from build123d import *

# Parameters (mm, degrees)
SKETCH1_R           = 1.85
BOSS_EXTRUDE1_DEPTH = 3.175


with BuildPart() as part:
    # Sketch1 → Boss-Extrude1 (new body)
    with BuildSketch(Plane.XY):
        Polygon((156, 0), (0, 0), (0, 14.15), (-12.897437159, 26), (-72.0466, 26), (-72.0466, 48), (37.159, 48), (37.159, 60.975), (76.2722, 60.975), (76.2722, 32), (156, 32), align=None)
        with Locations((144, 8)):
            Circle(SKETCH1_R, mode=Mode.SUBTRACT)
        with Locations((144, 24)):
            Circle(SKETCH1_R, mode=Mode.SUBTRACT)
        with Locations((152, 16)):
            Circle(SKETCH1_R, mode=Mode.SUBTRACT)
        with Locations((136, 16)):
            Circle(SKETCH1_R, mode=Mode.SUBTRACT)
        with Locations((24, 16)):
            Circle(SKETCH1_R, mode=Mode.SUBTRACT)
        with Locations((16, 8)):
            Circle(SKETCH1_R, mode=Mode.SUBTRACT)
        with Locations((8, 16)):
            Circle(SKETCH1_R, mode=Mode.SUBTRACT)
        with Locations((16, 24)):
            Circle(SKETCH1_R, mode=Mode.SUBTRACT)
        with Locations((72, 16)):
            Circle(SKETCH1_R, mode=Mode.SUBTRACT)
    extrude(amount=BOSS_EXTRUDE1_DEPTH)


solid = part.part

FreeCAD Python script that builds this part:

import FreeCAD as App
import Part
import Sketcher
Q = App.Units.Quantity

doc = App.newDocument("Part")
body = doc.addObject("PartDesign::Body", "Body")

# Sketch on XY plane
sketch1 = body.newObject("Sketcher::SketchObject", "Sketch")
sketch1.AttachmentSupport = (doc.getObject("XY_Plane"), [""])
sketch1.MapMode = "FlatFace"
sketch1.addGeometry([
    Part.LineSegment(App.Vector(0, 0, 0), App.Vector(156, 0, 0)),  # 0
    Part.LineSegment(App.Vector(156, 0, 0), App.Vector(156, 32, 0)),  # 1
    Part.LineSegment(App.Vector(156, 32, 0), App.Vector(76.2722, 32, 0)),  # 2
    Part.LineSegment(App.Vector(76.2722, 32, 0), App.Vector(76.2722, 60.975, 0)),  # 3
    Part.LineSegment(App.Vector(76.2722, 60.975, 0), App.Vector(37.159, 60.975, 0)),  # 4
    Part.LineSegment(App.Vector(37.159, 60.975, 0), App.Vector(37.159, 48, 0)),  # 5
    Part.LineSegment(App.Vector(37.159, 48, 0), App.Vector(-72.0466, 48, 0)),  # 6
    Part.LineSegment(App.Vector(-72.0466, 48, 0), App.Vector(-72.0466, 26, 0)),  # 7
    Part.LineSegment(App.Vector(-72.0466, 26, 0), App.Vector(-12.897437, 26, 0)),  # 8
    Part.LineSegment(App.Vector(-12.897437, 26, 0), App.Vector(0, 14.15, 0)),  # 9
    Part.LineSegment(App.Vector(0, 14.15, 0), App.Vector(0, 0, 0)),  # 10
    Part.Circle(App.Vector(144, 8, 0), App.Vector(0, 0, 1), 1.85),  # 11
    Part.Circle(App.Vector(16, 8, 0), App.Vector(0, 0, 1), 1.85),  # 12
    Part.Circle(App.Vector(152, 16, 0), App.Vector(0, 0, 1), 1.85),  # 13
    Part.Circle(App.Vector(136, 16, 0), App.Vector(0, 0, 1), 1.85),  # 14
    Part.Circle(App.Vector(144, 24, 0), App.Vector(0, 0, 1), 1.85),  # 15
    Part.Circle(App.Vector(72, 16, 0), App.Vector(0, 0, 1), 1.85),  # 16
    Part.Circle(App.Vector(24, 16, 0), App.Vector(0, 0, 1), 1.85),  # 17
    Part.Circle(App.Vector(8, 16, 0), App.Vector(0, 0, 1), 1.85),  # 18
    Part.Circle(App.Vector(16, 24, 0), App.Vector(0, 0, 1), 1.85),  # 19
], False)
sketch1.addConstraint([
    Sketcher.Constraint("Coincident", 0, 2, 1, 1),
    Sketcher.Constraint("Coincident", 1, 2, 2, 1),
    Sketcher.Constraint("Coincident", 2, 2, 3, 1),
    Sketcher.Constraint("Coincident", 3, 2, 4, 1),
    Sketcher.Constraint("Coincident", 4, 2, 5, 1),
    Sketcher.Constraint("Coincident", 5, 2, 6, 1),
    Sketcher.Constraint("Coincident", 6, 2, 7, 1),
    Sketcher.Constraint("Coincident", 7, 2, 8, 1),
    Sketcher.Constraint("Coincident", 8, 2, 9, 1),
    Sketcher.Constraint("Coincident", 9, 2, 10, 1),
    Sketcher.Constraint("Coincident", 10, 2, 0, 1),
    Sketcher.Constraint("Horizontal", 0),
    Sketcher.Constraint("Vertical", 1),
    Sketcher.Constraint("Horizontal", 2),
    Sketcher.Constraint("Vertical", 3),
    Sketcher.Constraint("Horizontal", 4),
    Sketcher.Constraint("Vertical", 5),
    Sketcher.Constraint("Horizontal", 6),
    Sketcher.Constraint("Vertical", 7),
    Sketcher.Constraint("Horizontal", 8),
    Sketcher.Constraint("Vertical", 10),
    Sketcher.Constraint("Coincident", 10, 2, -1, 1),
    Sketcher.Constraint("Equal", 11, 12),
    Sketcher.Constraint("Equal", 12, 13),
    Sketcher.Constraint("Equal", 13, 14),
    Sketcher.Constraint("Equal", 14, 15),
    Sketcher.Constraint("Equal", 15, 16),
    Sketcher.Constraint("Equal", 16, 17),
    Sketcher.Constraint("Equal", 17, 18),
    Sketcher.Constraint("Equal", 18, 19),
    Sketcher.Constraint("Horizontal", 11, 3, 12, 3),
    Sketcher.Constraint("Horizontal", 13, 3, 14, 3),
    Sketcher.Constraint("Horizontal", 14, 3, 16, 3),
    Sketcher.Constraint("Horizontal", 16, 3, 17, 3),
    Sketcher.Constraint("Horizontal", 17, 3, 18, 3),
    Sketcher.Constraint("Horizontal", 15, 3, 19, 3),
    Sketcher.Constraint("Vertical", 11, 3, 15, 3),
    Sketcher.Constraint("Vertical", 12, 3, 19, 3),
    Sketcher.Constraint("Diameter", 11, Q("3.7 mm")),
    Sketcher.Constraint("DistanceX", 0, 1, 0, 2, Q("156 mm")),
    Sketcher.Constraint("DistanceY", 1, 1, 1, 2, Q("32 mm")),
    Sketcher.Constraint("DistanceY", 7, 2, 7, 1, Q("22 mm")),
    Sketcher.Constraint("DistanceX", -1, 1, 11, 3, Q("144 mm")),
    Sketcher.Constraint("DistanceY", -1, 1, 11, 3, Q("8 mm")),
    Sketcher.Constraint("DistanceX", -1, 1, 12, 3, Q("16 mm")),
    Sketcher.Constraint("DistanceX", -1, 1, 13, 3, Q("152 mm")),
    Sketcher.Constraint("DistanceY", -1, 1, 13, 3, Q("16 mm")),
    Sketcher.Constraint("DistanceX", -1, 1, 14, 3, Q("136 mm")),
    Sketcher.Constraint("DistanceY", -1, 1, 15, 3, Q("24 mm")),
    Sketcher.Constraint("DistanceX", -1, 1, 16, 3, Q("72 mm")),
    Sketcher.Constraint("DistanceX", -1, 1, 17, 3, Q("24 mm")),
    Sketcher.Constraint("DistanceX", -1, 1, 18, 3, Q("8 mm")),
    Sketcher.Constraint("DistanceY", -1, 1, 5, 2, Q("48 mm")),
    Sketcher.Constraint("DistanceY", 10, 2, 10, 1, Q("14.15 mm")),
    Sketcher.Constraint("DistanceY", 3, 1, 3, 2, Q("28.975 mm")),
    Sketcher.Constraint("DistanceX", 2, 2, 2, 1, Q("79.7278 mm")),
    Sketcher.Constraint("DistanceX", 4, 2, 4, 1, Q("39.1132 mm")),
    Sketcher.Constraint("DistanceX", 6, 2, 6, 1, Q("109.2056 mm")),
    Sketcher.Constraint("DistanceX", 8, 1, 8, 2, Q("59.149163 mm")),
])
pad1 = body.newObject("PartDesign::Pad", "Pad")
pad1.Profile = sketch1
pad1.Length = 3.175

doc.recompute()
